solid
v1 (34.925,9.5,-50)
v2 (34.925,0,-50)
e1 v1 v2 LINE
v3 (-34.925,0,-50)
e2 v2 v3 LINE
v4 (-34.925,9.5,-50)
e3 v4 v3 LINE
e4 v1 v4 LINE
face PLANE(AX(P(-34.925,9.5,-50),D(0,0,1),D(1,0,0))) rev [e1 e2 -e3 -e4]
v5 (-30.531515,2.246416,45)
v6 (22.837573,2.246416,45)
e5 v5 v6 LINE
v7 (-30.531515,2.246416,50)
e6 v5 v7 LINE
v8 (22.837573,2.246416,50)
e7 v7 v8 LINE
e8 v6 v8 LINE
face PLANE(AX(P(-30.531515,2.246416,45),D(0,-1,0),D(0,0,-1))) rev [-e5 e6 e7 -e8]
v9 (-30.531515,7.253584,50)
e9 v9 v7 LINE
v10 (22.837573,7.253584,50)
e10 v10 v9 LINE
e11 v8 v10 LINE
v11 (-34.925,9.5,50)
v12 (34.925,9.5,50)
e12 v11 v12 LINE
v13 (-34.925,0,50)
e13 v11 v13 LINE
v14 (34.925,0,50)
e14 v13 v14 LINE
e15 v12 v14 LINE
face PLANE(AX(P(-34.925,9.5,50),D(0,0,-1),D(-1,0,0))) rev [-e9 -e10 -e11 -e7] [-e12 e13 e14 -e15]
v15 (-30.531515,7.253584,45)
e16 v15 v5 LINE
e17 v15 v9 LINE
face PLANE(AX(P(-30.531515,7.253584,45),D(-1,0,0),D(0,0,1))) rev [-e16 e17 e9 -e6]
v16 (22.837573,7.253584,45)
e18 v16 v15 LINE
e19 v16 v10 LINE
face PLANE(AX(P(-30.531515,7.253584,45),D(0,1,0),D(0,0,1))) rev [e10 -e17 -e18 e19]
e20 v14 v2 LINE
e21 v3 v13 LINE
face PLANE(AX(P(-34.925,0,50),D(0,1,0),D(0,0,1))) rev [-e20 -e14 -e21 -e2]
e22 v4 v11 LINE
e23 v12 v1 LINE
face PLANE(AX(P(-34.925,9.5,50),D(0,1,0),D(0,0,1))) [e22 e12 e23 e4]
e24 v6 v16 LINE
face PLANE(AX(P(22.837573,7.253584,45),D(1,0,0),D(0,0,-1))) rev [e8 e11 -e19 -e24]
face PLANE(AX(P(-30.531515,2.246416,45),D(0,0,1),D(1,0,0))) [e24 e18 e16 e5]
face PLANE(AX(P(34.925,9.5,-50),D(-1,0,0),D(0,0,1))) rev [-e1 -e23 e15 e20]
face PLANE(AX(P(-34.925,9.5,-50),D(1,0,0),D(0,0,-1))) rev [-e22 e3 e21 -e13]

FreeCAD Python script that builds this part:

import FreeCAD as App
import Part
import Sketcher
from FreeCAD import Vector


def add_polygon(sketch, points):
    """Adds a closed chain of lines whose ends are joined by coincident constraints."""
    first, n = sketch.GeometryCount, len(points)
    for a, b in zip(points, points[1:] + points[:1]):
        sketch.addGeometry(Part.LineSegment(App.Vector(*a, 0), App.Vector(*b, 0)), False)
    for i in range(n):
        sketch.addConstraint(Sketcher.Constraint("Coincident", first + i, 2, first + (i + 1) % n, 1))

doc = App.newDocument("Part")
body = doc.addObject("PartDesign::Body", "Body")

sketch1 = body.newObject("Sketcher::SketchObject", "Sketch")
sketch1.AttachmentSupport = (doc.getObject("XZ_Plane"), [""])
sketch1.MapMode = "FlatFace"
add_polygon(sketch1, [(-34.925, -50), (-34.925, 50), (34.925, 50), (34.925, -50)])
sketch1.addConstraint(Sketcher.Constraint("Vertical", 0))
sketch1.addConstraint(Sketcher.Constraint("Horizontal", 1))
sketch1.addConstraint(Sketcher.Constraint("Vertical", 2))
sketch1.addConstraint(Sketcher.Constraint("Horizontal", 3))
sketch1.addConstraint(Sketcher.Constraint("Symmetric", 0, 2, 2, 2, -1, 1))
sketch1.addConstraint(Sketcher.Constraint("DistanceY", 0, 1, 0, 2, 100.0))
sketch1.addConstraint(Sketcher.Constraint("DistanceX", 1, 1, 1, 2, 69.85))
pad1 = body.newObject("PartDesign::Pad", "Pad")
pad1.Profile = sketch1
pad1.Length = 9.5
pad1.Reversed = True

sketch2 = body.newObject("Sketcher::SketchObject", "Sketch001")
sketch2.AttachmentSupport = (doc.getObject("XY_Plane"), [""])
sketch2.MapMode = "FlatFace"
sketch2.AttachmentOffset = App.Placement(Vector(0, 0, 50), App.Rotation())
add_polygon(sketch2, [(-30.531515, 7.253584), (-30.531515, 2.246416), (22.837573, 2.246416), (22.837573, 7.253584)])
sketch2.addConstraint(Sketcher.Constraint("Vertical", 0))
sketch2.addConstraint(Sketcher.Constraint("Horizontal", 1))
sketch2.addConstraint(Sketcher.Constraint("Vertical", 2))
sketch2.addConstraint(Sketcher.Constraint("Horizontal", 3))
sketch2.addConstraint(Sketcher.Constraint("DistanceX", 1, 1, 1, 2, 53.369088))
sketch2.addConstraint(Sketcher.Constraint("DistanceY", 0, 2, 0, 1, 5.007168))
sketch2.addConstraint(Sketcher.Constraint("DistanceX", 0, 2, -1, 1, 30.531515))
sketch2.addConstraint(Sketcher.Constraint("DistanceY", -1, 1, 0, 2, 2.246416))
pocket1 = body.newObject("PartDesign::Pocket", "Pocket")
pocket1.Profile = sketch2
pocket1.Length = 5

doc.recompute()
